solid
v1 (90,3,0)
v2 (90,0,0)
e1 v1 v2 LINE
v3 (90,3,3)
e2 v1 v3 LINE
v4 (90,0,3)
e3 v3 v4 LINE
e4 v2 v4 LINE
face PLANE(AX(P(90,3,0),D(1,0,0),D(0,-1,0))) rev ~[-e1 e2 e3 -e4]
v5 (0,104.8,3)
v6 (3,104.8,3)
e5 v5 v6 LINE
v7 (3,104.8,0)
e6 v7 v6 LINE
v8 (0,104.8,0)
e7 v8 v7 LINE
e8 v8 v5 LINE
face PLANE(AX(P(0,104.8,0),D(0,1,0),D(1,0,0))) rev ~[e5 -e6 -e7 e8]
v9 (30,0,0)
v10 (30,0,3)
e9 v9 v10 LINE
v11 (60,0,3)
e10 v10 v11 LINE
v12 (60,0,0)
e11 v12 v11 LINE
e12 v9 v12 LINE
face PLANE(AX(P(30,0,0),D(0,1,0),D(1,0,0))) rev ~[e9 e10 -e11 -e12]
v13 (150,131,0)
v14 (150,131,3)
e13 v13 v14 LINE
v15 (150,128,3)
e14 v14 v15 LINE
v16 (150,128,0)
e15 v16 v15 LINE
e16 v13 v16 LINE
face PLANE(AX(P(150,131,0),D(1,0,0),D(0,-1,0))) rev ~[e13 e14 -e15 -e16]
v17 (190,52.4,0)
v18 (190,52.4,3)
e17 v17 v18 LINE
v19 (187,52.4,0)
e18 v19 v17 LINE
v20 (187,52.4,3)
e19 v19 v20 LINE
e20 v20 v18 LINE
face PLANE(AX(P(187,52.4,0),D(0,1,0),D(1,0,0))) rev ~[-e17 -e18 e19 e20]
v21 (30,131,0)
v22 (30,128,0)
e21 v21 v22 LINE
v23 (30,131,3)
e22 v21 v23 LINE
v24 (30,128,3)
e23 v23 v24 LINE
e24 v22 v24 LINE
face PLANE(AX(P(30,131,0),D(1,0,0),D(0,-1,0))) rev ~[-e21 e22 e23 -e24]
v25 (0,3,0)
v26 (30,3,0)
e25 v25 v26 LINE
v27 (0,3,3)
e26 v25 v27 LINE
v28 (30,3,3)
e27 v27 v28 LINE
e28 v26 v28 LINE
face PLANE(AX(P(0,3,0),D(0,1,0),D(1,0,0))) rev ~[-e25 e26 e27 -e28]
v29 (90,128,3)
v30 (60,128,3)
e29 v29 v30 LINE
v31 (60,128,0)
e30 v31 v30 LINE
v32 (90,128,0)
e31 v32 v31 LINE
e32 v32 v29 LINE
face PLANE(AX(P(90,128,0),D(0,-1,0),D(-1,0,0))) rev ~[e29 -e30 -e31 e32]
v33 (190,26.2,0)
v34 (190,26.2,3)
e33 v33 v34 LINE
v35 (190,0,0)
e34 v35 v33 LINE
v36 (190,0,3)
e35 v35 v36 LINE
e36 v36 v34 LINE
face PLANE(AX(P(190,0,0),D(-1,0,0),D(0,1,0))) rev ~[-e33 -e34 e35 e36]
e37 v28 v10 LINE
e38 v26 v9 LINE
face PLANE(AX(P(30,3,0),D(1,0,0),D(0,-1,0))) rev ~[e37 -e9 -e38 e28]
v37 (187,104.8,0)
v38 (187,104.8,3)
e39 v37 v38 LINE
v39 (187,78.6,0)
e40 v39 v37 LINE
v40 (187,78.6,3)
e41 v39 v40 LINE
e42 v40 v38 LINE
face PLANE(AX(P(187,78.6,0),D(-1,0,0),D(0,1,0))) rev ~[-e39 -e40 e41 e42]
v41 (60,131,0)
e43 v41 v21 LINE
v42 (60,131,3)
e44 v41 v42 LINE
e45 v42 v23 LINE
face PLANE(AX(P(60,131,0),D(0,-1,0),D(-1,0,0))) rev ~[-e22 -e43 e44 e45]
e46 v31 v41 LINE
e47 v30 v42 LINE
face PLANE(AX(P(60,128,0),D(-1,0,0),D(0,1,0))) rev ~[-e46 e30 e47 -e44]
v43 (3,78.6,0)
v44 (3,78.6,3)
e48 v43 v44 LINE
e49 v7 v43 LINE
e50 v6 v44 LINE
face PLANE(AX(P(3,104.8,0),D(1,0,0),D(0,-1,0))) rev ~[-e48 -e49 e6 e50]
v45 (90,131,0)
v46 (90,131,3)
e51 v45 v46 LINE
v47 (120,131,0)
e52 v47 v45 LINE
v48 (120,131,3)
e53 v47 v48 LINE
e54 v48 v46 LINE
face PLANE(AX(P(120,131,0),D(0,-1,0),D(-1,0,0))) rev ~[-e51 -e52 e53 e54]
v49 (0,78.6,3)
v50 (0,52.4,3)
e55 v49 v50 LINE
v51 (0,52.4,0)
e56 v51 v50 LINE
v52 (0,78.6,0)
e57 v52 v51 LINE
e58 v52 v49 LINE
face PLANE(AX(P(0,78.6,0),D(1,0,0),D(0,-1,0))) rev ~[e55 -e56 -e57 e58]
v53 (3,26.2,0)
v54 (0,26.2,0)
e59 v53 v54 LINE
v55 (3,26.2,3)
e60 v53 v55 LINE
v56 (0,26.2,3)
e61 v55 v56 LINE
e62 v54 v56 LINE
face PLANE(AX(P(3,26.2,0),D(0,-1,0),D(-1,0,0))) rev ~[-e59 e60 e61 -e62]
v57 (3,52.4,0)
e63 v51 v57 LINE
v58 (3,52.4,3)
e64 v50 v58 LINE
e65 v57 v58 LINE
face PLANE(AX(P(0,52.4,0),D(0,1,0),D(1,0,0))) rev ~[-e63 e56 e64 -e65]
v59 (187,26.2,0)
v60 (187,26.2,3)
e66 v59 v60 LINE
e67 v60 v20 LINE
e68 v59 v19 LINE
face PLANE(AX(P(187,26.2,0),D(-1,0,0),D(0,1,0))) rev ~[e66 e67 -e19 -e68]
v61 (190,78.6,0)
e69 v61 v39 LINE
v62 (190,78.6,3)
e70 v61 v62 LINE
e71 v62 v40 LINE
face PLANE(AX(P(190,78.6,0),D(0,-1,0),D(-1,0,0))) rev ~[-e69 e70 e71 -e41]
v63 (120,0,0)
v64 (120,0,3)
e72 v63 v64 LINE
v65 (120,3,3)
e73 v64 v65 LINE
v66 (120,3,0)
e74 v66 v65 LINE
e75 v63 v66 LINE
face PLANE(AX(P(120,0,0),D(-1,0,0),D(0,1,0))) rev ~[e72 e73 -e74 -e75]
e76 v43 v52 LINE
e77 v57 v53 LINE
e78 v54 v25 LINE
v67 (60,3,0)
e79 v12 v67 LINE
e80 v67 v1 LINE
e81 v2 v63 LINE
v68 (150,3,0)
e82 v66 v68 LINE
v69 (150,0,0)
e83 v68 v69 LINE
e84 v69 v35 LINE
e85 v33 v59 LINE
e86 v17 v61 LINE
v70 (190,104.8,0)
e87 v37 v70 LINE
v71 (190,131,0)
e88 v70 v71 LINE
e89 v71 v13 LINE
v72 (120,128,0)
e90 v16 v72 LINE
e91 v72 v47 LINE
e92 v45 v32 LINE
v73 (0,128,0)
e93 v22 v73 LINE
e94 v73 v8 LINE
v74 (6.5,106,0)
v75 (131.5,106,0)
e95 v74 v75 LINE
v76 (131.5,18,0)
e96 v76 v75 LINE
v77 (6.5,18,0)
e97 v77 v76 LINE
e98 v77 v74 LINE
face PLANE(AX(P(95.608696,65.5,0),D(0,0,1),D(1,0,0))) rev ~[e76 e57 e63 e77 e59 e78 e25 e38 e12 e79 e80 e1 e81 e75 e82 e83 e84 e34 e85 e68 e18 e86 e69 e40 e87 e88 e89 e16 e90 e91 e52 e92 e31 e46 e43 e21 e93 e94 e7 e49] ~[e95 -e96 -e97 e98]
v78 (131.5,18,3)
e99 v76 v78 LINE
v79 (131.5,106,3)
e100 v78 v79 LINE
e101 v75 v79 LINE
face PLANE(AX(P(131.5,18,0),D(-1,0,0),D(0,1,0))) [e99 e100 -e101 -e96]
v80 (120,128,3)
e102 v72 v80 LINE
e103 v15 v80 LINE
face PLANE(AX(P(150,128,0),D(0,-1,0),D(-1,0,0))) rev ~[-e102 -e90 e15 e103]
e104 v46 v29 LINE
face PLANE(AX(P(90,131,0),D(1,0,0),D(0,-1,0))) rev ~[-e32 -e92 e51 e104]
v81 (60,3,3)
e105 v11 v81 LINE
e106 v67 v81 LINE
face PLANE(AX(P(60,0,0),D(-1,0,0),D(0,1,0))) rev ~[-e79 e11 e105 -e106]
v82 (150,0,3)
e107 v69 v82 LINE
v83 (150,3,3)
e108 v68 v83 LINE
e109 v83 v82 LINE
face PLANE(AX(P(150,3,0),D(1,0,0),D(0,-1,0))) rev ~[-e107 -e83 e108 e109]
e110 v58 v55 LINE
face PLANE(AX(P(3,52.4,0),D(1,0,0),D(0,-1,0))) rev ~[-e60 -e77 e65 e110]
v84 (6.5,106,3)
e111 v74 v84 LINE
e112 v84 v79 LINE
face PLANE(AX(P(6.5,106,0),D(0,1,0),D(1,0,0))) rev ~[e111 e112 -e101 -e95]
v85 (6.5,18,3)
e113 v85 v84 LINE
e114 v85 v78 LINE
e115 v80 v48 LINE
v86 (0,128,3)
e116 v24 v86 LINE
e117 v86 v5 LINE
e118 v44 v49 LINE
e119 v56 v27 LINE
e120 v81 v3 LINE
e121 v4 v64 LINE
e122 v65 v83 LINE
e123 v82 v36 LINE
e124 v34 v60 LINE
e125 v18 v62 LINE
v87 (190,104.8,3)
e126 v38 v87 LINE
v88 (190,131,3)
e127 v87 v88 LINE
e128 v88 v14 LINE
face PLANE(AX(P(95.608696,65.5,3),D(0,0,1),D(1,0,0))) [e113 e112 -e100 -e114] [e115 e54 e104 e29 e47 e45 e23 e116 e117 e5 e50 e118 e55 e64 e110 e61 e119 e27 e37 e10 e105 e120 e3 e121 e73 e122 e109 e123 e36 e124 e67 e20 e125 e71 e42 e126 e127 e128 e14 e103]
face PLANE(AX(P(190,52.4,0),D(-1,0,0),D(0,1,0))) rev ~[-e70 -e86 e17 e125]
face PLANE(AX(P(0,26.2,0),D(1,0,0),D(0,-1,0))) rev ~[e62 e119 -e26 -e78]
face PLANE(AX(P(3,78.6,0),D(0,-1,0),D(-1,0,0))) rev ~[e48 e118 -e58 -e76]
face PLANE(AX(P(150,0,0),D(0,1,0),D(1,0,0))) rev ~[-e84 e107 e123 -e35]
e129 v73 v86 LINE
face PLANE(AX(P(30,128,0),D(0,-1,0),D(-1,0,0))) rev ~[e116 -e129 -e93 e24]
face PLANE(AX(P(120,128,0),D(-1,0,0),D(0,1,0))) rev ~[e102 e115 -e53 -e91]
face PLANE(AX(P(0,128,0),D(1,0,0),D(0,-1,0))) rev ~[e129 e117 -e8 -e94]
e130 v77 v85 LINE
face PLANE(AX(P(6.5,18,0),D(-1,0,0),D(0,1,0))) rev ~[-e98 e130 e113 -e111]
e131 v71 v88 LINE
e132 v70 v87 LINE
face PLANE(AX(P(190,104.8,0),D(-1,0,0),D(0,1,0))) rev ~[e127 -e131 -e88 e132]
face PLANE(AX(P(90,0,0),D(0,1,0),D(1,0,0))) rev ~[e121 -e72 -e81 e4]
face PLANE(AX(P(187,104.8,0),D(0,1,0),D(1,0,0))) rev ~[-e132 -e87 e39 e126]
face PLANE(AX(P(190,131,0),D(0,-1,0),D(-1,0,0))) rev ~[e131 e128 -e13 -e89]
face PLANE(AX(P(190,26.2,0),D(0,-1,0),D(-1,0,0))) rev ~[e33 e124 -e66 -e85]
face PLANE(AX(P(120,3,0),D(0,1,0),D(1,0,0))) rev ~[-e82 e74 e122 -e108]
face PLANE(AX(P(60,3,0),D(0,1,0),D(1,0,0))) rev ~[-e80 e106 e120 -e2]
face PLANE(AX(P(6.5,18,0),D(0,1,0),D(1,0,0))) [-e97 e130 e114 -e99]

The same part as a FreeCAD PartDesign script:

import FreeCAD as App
import Part
import Sketcher

V = App.Vector

doc = App.newDocument("Part")
body = doc.addObject("PartDesign::Body", "Body")

# Sketch on XY plane
sketch1 = body.newObject("Sketcher::SketchObject", "Sketch")
sketch1.AttachmentSupport = (doc.getObject("XY_Plane"), [""])
sketch1.MapMode = "FlatFace"
sketch1.addGeometry(Part.LineSegment(V(60, 128, 0), V(60, 131, 0)), False)
sketch1.addGeometry(Part.LineSegment(V(60, 131, 0), V(30, 131, 0)), False)
sketch1.addGeometry(Part.LineSegment(V(30, 131, 0), V(30, 128, 0)), False)
sketch1.addGeometry(Part.LineSegment(V(30, 128, 0), V(0, 128, 0)), False)
sketch1.addGeometry(Part.LineSegment(V(0, 128, 0), V(0, 104.8, 0)), False)
sketch1.addGeometry(Part.LineSegment(V(0, 104.8, 0), V(3, 104.8, 0)), False)
sketch1.addGeometry(Part.LineSegment(V(3, 104.8, 0), V(3, 78.6, 0)), False)
sketch1.addGeometry(Part.LineSegment(V(3, 78.6, 0), V(0, 78.6, 0)), False)
sketch1.addGeometry(Part.LineSegment(V(0, 78.6, 0), V(0, 52.4, 0)), False)
sketch1.addGeometry(Part.LineSegment(V(0, 52.4, 0), V(3, 52.4, 0)), False)
sketch1.addGeometry(Part.LineSegment(V(3, 52.4, 0), V(3, 26.2, 0)), False)
sketch1.addGeometry(Part.LineSegment(V(3, 26.2, 0), V(0, 26.2, 0)), False)
sketch1.addGeometry(Part.LineSegment(V(0, 26.2, 0), V(0, 3, 0)), False)
sketch1.addGeometry(Part.LineSegment(V(0, 3, 0), V(30, 3, 0)), False)
sketch1.addGeometry(Part.LineSegment(V(30, 3, 0), V(30, 0, 0)), False)
sketch1.addGeometry(Part.LineSegment(V(30, 0, 0), V(60, 0, 0)), False)
sketch1.addGeometry(Part.LineSegment(V(60, 0, 0), V(60, 3, 0)), False)
sketch1.addGeometry(Part.LineSegment(V(60, 3, 0), V(90, 3, 0)), False)
sketch1.addGeometry(Part.LineSegment(V(90, 3, 0), V(90, 0, 0)), False)
sketch1.addGeometry(Part.LineSegment(V(90, 0, 0), V(120, 0, 0)), False)
sketch1.addGeometry(Part.LineSegment(V(120, 0, 0), V(120, 3, 0)), False)
sketch1.addGeometry(Part.LineSegment(V(120, 3, 0), V(150, 3, 0)), False)
sketch1.addGeometry(Part.LineSegment(V(150, 3, 0), V(150, 0, 0)), False)
sketch1.addGeometry(Part.LineSegment(V(150, 0, 0), V(190, 0, 0)), False)
sketch1.addGeometry(Part.LineSegment(V(190, 0, 0), V(190, 26.2, 0)), False)
sketch1.addGeometry(Part.LineSegment(V(190, 26.2, 0), V(187, 26.2, 0)), False)
sketch1.addGeometry(Part.LineSegment(V(187, 26.2, 0), V(187, 52.4, 0)), False)
sketch1.addGeometry(Part.LineSegment(V(187, 52.4, 0), V(190, 52.4, 0)), False)
sketch1.addGeometry(Part.LineSegment(V(190, 52.4, 0), V(190, 78.6, 0)), False)
sketch1.addGeometry(Part.LineSegment(V(190, 78.6, 0), V(187, 78.6, 0)), False)
sketch1.addGeometry(Part.LineSegment(V(187, 78.6, 0), V(187, 104.8, 0)), False)
sketch1.addGeometry(Part.LineSegment(V(187, 104.8, 0), V(190, 104.8, 0)), False)
sketch1.addGeometry(Part.LineSegment(V(190, 104.8, 0), V(190, 131, 0)), False)
sketch1.addGeometry(Part.LineSegment(V(190, 131, 0), V(150, 131, 0)), False)
sketch1.addGeometry(Part.LineSegment(V(150, 131, 0), V(150, 128, 0)), False)
sketch1.addGeometry(Part.LineSegment(V(150, 128, 0), V(120, 128, 0)), False)
sketch1.addGeometry(Part.LineSegment(V(120, 128, 0), V(120, 131, 0)), False)
sketch1.addGeometry(Part.LineSegment(V(120, 131, 0), V(90, 131, 0)), False)
sketch1.addGeometry(Part.LineSegment(V(90, 131, 0), V(90, 128, 0)), False)
sketch1.addGeometry(Part.LineSegment(V(90, 128, 0), V(60, 128, 0)), False)
sketch1.addGeometry(Part.LineSegment(V(131.5, 18, 0), V(6.5, 18, 0)), False)
sketch1.addGeometry(Part.LineSegment(V(6.5, 18, 0), V(6.5, 106, 0)), False)
sketch1.addGeometry(Part.LineSegment(V(6.5, 106, 0), V(131.5, 106, 0)), False)
sketch1.addGeometry(Part.LineSegment(V(131.5, 106, 0), V(131.5, 18, 0)), False)
sketch1.addConstraint(Sketcher.Constraint("Coincident", 0, 2, 1, 1))
sketch1.addConstraint(Sketcher.Constraint("Coincident", 1, 2, 2, 1))
sketch1.addConstraint(Sketcher.Constraint("Coincident", 2, 2, 3, 1))
sketch1.addConstraint(Sketcher.Constraint("Coincident", 3, 2, 4, 1))
sketch1.addConstraint(Sketcher.Constraint("Coincident", 4, 2, 5, 1))
sketch1.addConstraint(Sketcher.Constraint("Coincident", 5, 2, 6, 1))
sketch1.addConstraint(Sketcher.Constraint("Coincident", 6, 2, 7, 1))
sketch1.addConstraint(Sketcher.Constraint("Coincident", 7, 2, 8, 1))
sketch1.addConstraint(Sketcher.Constraint("Coincident", 8, 2, 9, 1))
sketch1.addConstraint(Sketcher.Constraint("Coincident", 9, 2, 10, 1))
sketch1.addConstraint(Sketcher.Constraint("Coincident", 10, 2, 11, 1))
sketch1.addConstraint(Sketcher.Constraint("Coincident", 11, 2, 12, 1))
sketch1.addConstraint(Sketcher.Constraint("Coincident", 12, 2, 13, 1))
sketch1.addConstraint(Sketcher.Constraint("Coincident", 13, 2, 14, 1))
sketch1.addConstraint(Sketcher.Constraint("Coincident", 14, 2, 15, 1))
sketch1.addConstraint(Sketcher.Constraint("Coincident", 15, 2, 16, 1))
sketch1.addConstraint(Sketcher.Constraint("Coincident", 16, 2, 17, 1))
sketch1.addConstraint(Sketcher.Constraint("Coincident", 17, 2, 18, 1))
sketch1.addConstraint(Sketcher.Constraint("Coincident", 18, 2, 19, 1))
sketch1.addConstraint(Sketcher.Constraint("Coincident", 19, 2, 20, 1))
sketch1.addConstraint(Sketcher.Constraint("Coincident", 20, 2, 21, 1))
sketch1.addConstraint(Sketcher.Constraint("Coincident", 21, 2, 22, 1))
sketch1.addConstraint(Sketcher.Constraint("Coincident", 22, 2, 23, 1))
sketch1.addConstraint(Sketcher.Constraint("Coincident", 23, 2, 24, 1))
sketch1.addConstraint(Sketcher.Constraint("Coincident", 24, 2, 25, 1))
sketch1.addConstraint(Sketcher.Constraint("Coincident", 25, 2, 26, 1))
sketch1.addConstraint(Sketcher.Constraint("Coincident", 26, 2, 27, 1))
sketch1.addConstraint(Sketcher.Constraint("Coincident", 27, 2, 28, 1))
sketch1.addConstraint(Sketcher.Constraint("Coincident", 28, 2, 29, 1))
sketch1.addConstraint(Sketcher.Constraint("Coincident", 29, 2, 30, 1))
sketch1.addConstraint(Sketcher.Constraint("Coincident", 30, 2, 31, 1))
sketch1.addConstraint(Sketcher.Constraint("Coincident", 31, 2, 32, 1))
sketch1.addConstraint(Sketcher.Constraint("Coincident", 32, 2, 33, 1))
sketch1.addConstraint(Sketcher.Constraint("Coincident", 33, 2, 34, 1))
sketch1.addConstraint(Sketcher.Constraint("Coincident", 34, 2, 35, 1))
sketch1.addConstraint(Sketcher.Constraint("Coincident", 35, 2, 36, 1))
sketch1.addConstraint(Sketcher.Constraint("Coincident", 36, 2, 37, 1))
sketch1.addConstraint(Sketcher.Constraint("Coincident", 37, 2, 38, 1))
sketch1.addConstraint(Sketcher.Constraint("Coincident", 38, 2, 39, 1))
sketch1.addConstraint(Sketcher.Constraint("Coincident", 39, 2, 0, 1))
sketch1.addConstraint(Sketcher.Constraint("Coincident", 40, 2, 41, 1))
sketch1.addConstraint(Sketcher.Constraint("Coincident", 41, 2, 42, 1))
sketch1.addConstraint(Sketcher.Constraint("Coincident", 42, 2, 43, 1))
sketch1.addConstraint(Sketcher.Constraint("Coincident", 43, 2, 40, 1))
sketch1.addConstraint(Sketcher.Constraint("Vertical", 0))
sketch1.addConstraint(Sketcher.Constraint("Horizontal", 1))
sketch1.addConstraint(Sketcher.Constraint("Vertical", 2))
sketch1.addConstraint(Sketcher.Constraint("Horizontal", 3))
sketch1.addConstraint(Sketcher.Constraint("Vertical", 4))
sketch1.addConstraint(Sketcher.Constraint("Horizontal", 5))
sketch1.addConstraint(Sketcher.Constraint("Vertical", 6))
sketch1.addConstraint(Sketcher.Constraint("Horizontal", 7))
sketch1.addConstraint(Sketcher.Constraint("Vertical", 8))
sketch1.addConstraint(Sketcher.Constraint("Horizontal", 9))
sketch1.addConstraint(Sketcher.Constraint("Vertical", 10))
sketch1.addConstraint(Sketcher.Constraint("Horizontal", 11))
sketch1.addConstraint(Sketcher.Constraint("Vertical", 12))
sketch1.addConstraint(Sketcher.Constraint("Horizontal", 13))
sketch1.addConstraint(Sketcher.Constraint("Vertical", 14))
sketch1.addConstraint(Sketcher.Constraint("Horizontal", 15))
sketch1.addConstraint(Sketcher.Constraint("Vertical", 16))
sketch1.addConstraint(Sketcher.Constraint("Horizontal", 17))
sketch1.addConstraint(Sketcher.Constraint("Vertical", 18))
sketch1.addConstraint(Sketcher.Constraint("Horizontal", 19))
sketch1.addConstraint(Sketcher.Constraint("Vertical", 20))
sketch1.addConstraint(Sketcher.Constraint("Horizontal", 21))
sketch1.addConstraint(Sketcher.Constraint("Vertical", 22))
sketch1.addConstraint(Sketcher.Constraint("Horizontal", 23))
sketch1.addConstraint(Sketcher.Constraint("Vertical", 24))
sketch1.addConstraint(Sketcher.Constraint("Horizontal", 25))
sketch1.addConstraint(Sketcher.Constraint("Vertical", 26))
sketch1.addConstraint(Sketcher.Constraint("Horizontal", 27))
sketch1.addConstraint(Sketcher.Constraint("Vertical", 28))
sketch1.addConstraint(Sketcher.Constraint("Horizontal", 29))
sketch1.addConstraint(Sketcher.Constraint("Vertical", 30))
sketch1.addConstraint(Sketcher.Constraint("Horizontal", 31))
sketch1.addConstraint(Sketcher.Constraint("Vertical", 32))
sketch1.addConstraint(Sketcher.Constraint("Horizontal", 33))
sketch1.addConstraint(Sketcher.Constraint("Vertical", 34))
sketch1.addConstraint(Sketcher.Constraint("Horizontal", 35))
sketch1.addConstraint(Sketcher.Constraint("Vertical", 36))
sketch1.addConstraint(Sketcher.Constraint("Horizontal", 37))
sketch1.addConstraint(Sketcher.Constraint("Vertical", 38))
sketch1.addConstraint(Sketcher.Constraint("Horizontal", 39))
sketch1.addConstraint(Sketcher.Constraint("Horizontal", 40))
sketch1.addConstraint(Sketcher.Constraint("Vertical", 41))
sketch1.addConstraint(Sketcher.Constraint("Horizontal", 42))
sketch1.addConstraint(Sketcher.Constraint("Vertical", 43))
sketch1.addConstraint(Sketcher.Constraint("PointOnObject", 3, 2, -2))
sketch1.addConstraint(Sketcher.Constraint("PointOnObject", 7, 2, -2))
sketch1.addConstraint(Sketcher.Constraint("PointOnObject", 11, 2, -2))
sketch1.addConstraint(Sketcher.Constraint("PointOnObject", 14, 2, -1))
sketch1.addConstraint(Sketcher.Constraint("PointOnObject", 18, 2, -1))
sketch1.addConstraint(Sketcher.Constraint("PointOnObject", 22, 2, -1))
sketch1.addConstraint(Sketcher.Constraint("Horizontal", 13, 2, 16, 2))
sketch1.addConstraint(Sketcher.Constraint("Horizontal", 17, 2, 20, 2))
sketch1.addConstraint(Sketcher.Constraint("Horizontal", 11, 2, 24, 2))
sketch1.addConstraint(Sketcher.Constraint("Horizontal", 9, 2, 26, 2))
sketch1.addConstraint(Sketcher.Constraint("Horizontal", 7, 2, 28, 2))
sketch1.addConstraint(Sketcher.Constraint("Horizontal", 5, 2, 30, 2))
sketch1.addConstraint(Sketcher.Constraint("Horizontal", 1, 2, 32, 2))
sketch1.addConstraint(Sketcher.Constraint("Horizontal", 3, 2, 34, 2))
sketch1.addConstraint(Sketcher.Constraint("Horizontal", 33, 2, 36, 2))
sketch1.addConstraint(Sketcher.Constraint("Horizontal", 35, 2, 38, 2))
sketch1.addConstraint(Sketcher.Constraint("Vertical", 6, 2, 9, 2))
sketch1.addConstraint(Sketcher.Constraint("Vertical", 2, 2, 13, 2))
sketch1.addConstraint(Sketcher.Constraint("Vertical", 0, 2, 15, 2))
sketch1.addConstraint(Sketcher.Constraint("Vertical", 24, 2, 27, 2))
sketch1.addConstraint(Sketcher.Constraint("Vertical", 26, 2, 29, 2))
sketch1.addConstraint(Sketcher.Constraint("Vertical", 28, 2, 31, 2))
sketch1.addConstraint(Sketcher.Constraint("Vertical", 22, 2, 33, 2))
sketch1.addConstraint(Sketcher.Constraint("Vertical", 20, 2, 35, 2))
sketch1.addConstraint(Sketcher.Constraint("Vertical", 18, 2, 37, 2))
sketch1.addConstraint(Sketcher.Constraint("Equal", 1, 3))
sketch1.addConstraint(Sketcher.Constraint("Equal", 15, 17))
sketch1.addConstraint(Sketcher.Constraint("Equal", 17, 19))
sketch1.addConstraint(Sketcher.Constraint("Equal", 19, 21))
sketch1.addConstraint(Sketcher.Constraint("Equal", 11, 25))
sketch1.addConstraint(Sketcher.Constraint("Equal", 31, 0))
sketch1.addConstraint(Sketcher.Constraint("Equal", 6, 8))
sketch1.addConstraint(Sketcher.Constraint("Equal", 8, 10))
sketch1.addConstraint(Sketcher.Constraint("Equal", 4, 12))
sketch1.addConstraint(Sketcher.Constraint("Equal", 2, 14))
sketch1.addConstraint(Sketcher.Constraint("Equal", 10, 24))
sketch1.addConstraint(Sketcher.Constraint("DistanceX", 1, 2, 1, 1, 30.0))
sketch1.addConstraint(Sketcher.Constraint("DistanceX", 5, 1, 5, 2, 3.0))
sketch1.addConstraint(Sketcher.Constraint("DistanceX", 23, 1, 23, 2, 40.0))
sketch1.addConstraint(Sketcher.Constraint("DistanceX", 40, 2, 40, 1, 125.0))
sketch1.addConstraint(Sketcher.Constraint("DistanceY", 41, 1, 41, 2, 88.0))
sketch1.addConstraint(Sketcher.Constraint("DistanceY", 4, 2, 4, 1, 23.2))
sketch1.addConstraint(Sketcher.Constraint("DistanceY", -1, 1, 40, 2, 18.0))
sketch1.addConstraint(Sketcher.Constraint("DistanceX", -1, 1, 40, 2, 6.5))
pad1 = body.newObject("PartDesign::Pad", "Pad")
pad1.Profile = sketch1
pad1.Length = 3

doc.recompute()
